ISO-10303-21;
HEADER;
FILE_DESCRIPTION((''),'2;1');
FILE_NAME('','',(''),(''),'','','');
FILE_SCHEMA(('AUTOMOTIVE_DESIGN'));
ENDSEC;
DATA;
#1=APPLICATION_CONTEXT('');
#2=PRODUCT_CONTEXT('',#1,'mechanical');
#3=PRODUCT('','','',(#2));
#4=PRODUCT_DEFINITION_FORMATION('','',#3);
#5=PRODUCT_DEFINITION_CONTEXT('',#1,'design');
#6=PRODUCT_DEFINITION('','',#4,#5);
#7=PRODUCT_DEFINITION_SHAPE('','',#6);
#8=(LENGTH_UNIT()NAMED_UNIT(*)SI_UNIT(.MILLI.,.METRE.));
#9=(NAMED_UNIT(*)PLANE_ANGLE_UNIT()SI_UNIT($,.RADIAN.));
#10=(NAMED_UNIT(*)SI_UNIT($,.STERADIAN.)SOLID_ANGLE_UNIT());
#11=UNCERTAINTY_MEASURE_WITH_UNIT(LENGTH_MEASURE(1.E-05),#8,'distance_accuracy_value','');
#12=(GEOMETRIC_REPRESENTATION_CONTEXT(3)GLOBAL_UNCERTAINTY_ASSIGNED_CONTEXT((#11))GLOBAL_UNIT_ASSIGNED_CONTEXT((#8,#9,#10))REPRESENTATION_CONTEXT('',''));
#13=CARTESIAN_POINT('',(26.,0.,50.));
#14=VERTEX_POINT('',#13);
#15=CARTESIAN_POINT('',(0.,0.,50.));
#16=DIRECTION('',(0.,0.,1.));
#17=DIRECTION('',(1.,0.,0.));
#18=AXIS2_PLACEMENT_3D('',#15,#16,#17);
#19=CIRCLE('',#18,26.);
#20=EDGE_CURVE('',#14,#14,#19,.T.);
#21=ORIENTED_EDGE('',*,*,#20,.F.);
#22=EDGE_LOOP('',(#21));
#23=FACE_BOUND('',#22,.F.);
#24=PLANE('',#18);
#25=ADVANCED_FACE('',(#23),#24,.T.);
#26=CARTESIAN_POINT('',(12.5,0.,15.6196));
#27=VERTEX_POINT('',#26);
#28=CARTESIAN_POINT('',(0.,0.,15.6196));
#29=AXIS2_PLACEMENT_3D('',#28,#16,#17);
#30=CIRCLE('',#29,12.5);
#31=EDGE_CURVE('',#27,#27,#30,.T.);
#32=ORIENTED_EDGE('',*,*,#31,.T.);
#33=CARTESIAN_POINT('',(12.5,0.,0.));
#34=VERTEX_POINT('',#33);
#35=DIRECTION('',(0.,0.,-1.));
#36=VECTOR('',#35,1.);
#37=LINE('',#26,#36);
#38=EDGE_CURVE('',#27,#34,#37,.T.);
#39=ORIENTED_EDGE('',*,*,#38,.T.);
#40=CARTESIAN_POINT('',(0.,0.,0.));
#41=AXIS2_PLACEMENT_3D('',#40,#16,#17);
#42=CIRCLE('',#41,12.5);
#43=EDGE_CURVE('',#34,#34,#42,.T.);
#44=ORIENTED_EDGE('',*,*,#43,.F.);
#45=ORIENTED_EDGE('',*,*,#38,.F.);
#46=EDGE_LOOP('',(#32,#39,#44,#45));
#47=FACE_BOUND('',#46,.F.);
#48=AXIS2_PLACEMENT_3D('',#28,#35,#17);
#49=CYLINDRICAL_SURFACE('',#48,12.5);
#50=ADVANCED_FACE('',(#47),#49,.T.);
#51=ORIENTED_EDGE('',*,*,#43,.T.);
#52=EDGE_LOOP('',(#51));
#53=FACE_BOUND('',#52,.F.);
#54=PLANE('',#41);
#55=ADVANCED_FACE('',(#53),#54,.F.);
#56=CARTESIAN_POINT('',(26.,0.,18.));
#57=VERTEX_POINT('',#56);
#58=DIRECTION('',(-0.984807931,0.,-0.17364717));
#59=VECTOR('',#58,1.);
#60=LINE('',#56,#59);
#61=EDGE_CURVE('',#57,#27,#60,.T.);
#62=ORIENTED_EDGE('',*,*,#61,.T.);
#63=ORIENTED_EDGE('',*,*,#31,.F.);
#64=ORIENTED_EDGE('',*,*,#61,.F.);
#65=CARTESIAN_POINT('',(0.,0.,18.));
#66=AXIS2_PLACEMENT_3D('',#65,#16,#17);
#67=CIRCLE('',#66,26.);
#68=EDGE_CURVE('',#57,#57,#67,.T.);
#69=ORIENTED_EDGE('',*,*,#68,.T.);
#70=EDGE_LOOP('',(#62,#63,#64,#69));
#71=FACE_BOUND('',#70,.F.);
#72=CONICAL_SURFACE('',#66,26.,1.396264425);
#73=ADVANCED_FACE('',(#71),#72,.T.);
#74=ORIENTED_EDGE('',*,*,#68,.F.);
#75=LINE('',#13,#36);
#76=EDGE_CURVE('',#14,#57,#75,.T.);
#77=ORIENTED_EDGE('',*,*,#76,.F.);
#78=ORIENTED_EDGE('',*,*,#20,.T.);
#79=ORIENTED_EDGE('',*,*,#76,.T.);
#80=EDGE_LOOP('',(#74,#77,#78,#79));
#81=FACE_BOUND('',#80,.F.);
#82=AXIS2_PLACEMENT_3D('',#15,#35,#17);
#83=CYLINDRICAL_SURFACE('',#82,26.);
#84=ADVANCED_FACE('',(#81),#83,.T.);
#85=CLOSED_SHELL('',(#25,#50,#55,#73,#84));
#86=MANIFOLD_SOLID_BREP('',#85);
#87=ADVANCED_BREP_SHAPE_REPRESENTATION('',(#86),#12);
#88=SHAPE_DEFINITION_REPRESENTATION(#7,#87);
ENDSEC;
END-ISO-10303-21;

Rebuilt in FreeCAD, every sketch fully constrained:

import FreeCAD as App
import Part
import Sketcher

V = App.Vector
Q = App.Units.Quantity


def add_polygon(sketch, points):
    """Adds a closed chain of lines whose ends are joined by coincident constraints."""
    first, n = sketch.GeometryCount, len(points)
    for a, b in zip(points, points[1:] + points[:1]):
        sketch.addGeometry(Part.LineSegment(App.Vector(*a, 0), App.Vector(*b, 0)), False)
    for i in range(n):
        sketch.addConstraint(Sketcher.Constraint("Coincident", first + i, 2, first + (i + 1) % n, 1))

doc = App.newDocument("Part")
params = doc.addObject("Spreadsheet::Sheet", "Params")
for row, (alias, value) in enumerate([
    ("sketch1_height", "50 mm"),
    ("sketch1_height2", "32 mm"),
    ("sketch1_width", "26 mm"),
    ("sketch1_width2", "12.5 mm"),
    ("revolution_angle", "360 deg"),
], start=1):
    params.set(f"A{row}", alias)
    params.set(f"B{row}", "=" + value)
    params.setAlias(f"B{row}", alias)

body = doc.addObject("PartDesign::Body", "Body")

# Sketch on XZ plane
sketch1 = doc.addObject("Sketcher::SketchObject", "Sketch")
body.addObject(sketch1)
sketch1.AttachmentSupport = (doc.XZ_Plane, [""])
sketch1.MapMode = "FlatFace"
add_polygon(sketch1, [(12, 0), (0, 0), (0, 50), (26, 50), (26, 18), (12, 16)])  # lines 0-5
sketch1.addConstraint(Sketcher.Constraint("Horizontal", 0))
sketch1.addConstraint(Sketcher.Constraint("Vertical", 1))
sketch1.addConstraint(Sketcher.Constraint("Horizontal", 2))
sketch1.addConstraint(Sketcher.Constraint("Vertical", 3))
sketch1.addConstraint(Sketcher.Constraint("Vertical", 5))
sketch1.addConstraint(Sketcher.Constraint("Coincident", 0, 2, -1, 1))
sketch1.addConstraint(Sketcher.Constraint("DistanceY", 1, 1, 1, 2, Q("50 mm")))
sketch1.addConstraint(Sketcher.Constraint("DistanceY", 3, 2, 3, 1, Q("32 mm")))
sketch1.addConstraint(Sketcher.Constraint("DistanceX", 2, 1, 2, 2, Q("26 mm")))
sketch1.addConstraint(Sketcher.Constraint("Angle", 4, Q("-170 deg")))
sketch1.addConstraint(Sketcher.Constraint("DistanceX", 0, 2, 0, 1, Q("12.5 mm")))
sketch1.setExpression("Constraints[12]", "Params.sketch1_height")
sketch1.setExpression("Constraints[13]", "Params.sketch1_height2")
sketch1.setExpression("Constraints[14]", "Params.sketch1_width")
sketch1.setExpression("Constraints[16]", "Params.sketch1_width2")
revolution = doc.addObject("PartDesign::Revolution", "Revolution")
body.addObject(revolution)
revolution.Profile = sketch1
revolution.ReferenceAxis = (sketch1, ["V_Axis"])
revolution.setExpression("Angle", "Params.revolution_angle")

doc.recompute()
